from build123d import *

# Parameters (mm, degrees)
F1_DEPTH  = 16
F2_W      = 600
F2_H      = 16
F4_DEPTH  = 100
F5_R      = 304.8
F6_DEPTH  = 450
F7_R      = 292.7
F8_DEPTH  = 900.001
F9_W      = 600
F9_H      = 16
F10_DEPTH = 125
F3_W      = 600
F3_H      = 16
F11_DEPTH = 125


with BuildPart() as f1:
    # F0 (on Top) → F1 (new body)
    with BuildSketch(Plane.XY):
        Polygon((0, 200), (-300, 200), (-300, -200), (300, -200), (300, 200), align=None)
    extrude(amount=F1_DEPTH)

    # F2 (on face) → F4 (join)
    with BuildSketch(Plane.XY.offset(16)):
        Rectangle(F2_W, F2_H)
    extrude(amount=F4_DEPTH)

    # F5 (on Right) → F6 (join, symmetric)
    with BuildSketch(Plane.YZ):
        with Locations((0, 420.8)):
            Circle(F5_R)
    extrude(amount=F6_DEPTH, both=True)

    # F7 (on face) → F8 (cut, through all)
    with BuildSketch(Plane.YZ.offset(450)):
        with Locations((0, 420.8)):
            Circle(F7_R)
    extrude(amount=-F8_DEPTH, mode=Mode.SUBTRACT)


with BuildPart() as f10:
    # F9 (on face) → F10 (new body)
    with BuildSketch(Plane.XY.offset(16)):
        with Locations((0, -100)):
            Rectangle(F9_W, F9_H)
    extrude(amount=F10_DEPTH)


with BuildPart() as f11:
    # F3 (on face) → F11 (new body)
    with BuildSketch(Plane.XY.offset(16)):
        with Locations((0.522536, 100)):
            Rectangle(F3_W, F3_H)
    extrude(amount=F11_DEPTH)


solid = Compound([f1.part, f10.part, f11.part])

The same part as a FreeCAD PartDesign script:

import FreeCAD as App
import Part
import Sketcher

V = App.Vector


def add_polygon(sketch, points):
    """Adds a closed chain of lines whose ends are joined by coincident constraints."""
    first, n = sketch.GeometryCount, len(points)
    for a, b in zip(points, points[1:] + points[:1]):
        sketch.addGeometry(Part.LineSegment(App.Vector(*a, 0), App.Vector(*b, 0)), False)
    for i in range(n):
        sketch.addConstraint(Sketcher.Constraint("Coincident", first + i, 2, first + (i + 1) % n, 1))

doc = App.newDocument("Part")
body = doc.addObject("PartDesign::Body", "Body")
body.AllowCompound = True

sketch1 = body.newObject("Sketcher::SketchObject", "Sketch")
sketch1.AttachmentSupport = (doc.getObject("XY_Plane"), [""])
sketch1.MapMode = "FlatFace"
add_polygon(sketch1, [(-300, 200), (-300, -200), (300, -200), (300, 200)])
sketch1.addConstraint([
    Sketcher.Constraint("Vertical", 0),
    Sketcher.Constraint("Horizontal", 1),
    Sketcher.Constraint("Vertical", 2),
    Sketcher.Constraint("Horizontal", 3),
    Sketcher.Constraint("Symmetric", 0, 2, 2, 2, -1, 1),
    Sketcher.Constraint("DistanceX", 1, 1, 1, 2, 600.0),
    Sketcher.Constraint("DistanceY", 0, 2, 0, 1, 400.0),
])
pad1 = body.newObject("PartDesign::Pad", "Pad")
pad1.Profile = sketch1
pad1.Length = 16

sketch2 = body.newObject("Sketcher::SketchObject", "Sketch001")
sketch2.AttachmentSupport = (doc.getObject("XY_Plane"), [""])
sketch2.MapMode = "FlatFace"
sketch2.AttachmentOffset = App.Placement(V(0, 0, 16), App.Rotation())
add_polygon(sketch2, [(-300, 8), (-300, -8), (300, -8), (300, 8)])
sketch2.addConstraint([
    Sketcher.Constraint("Vertical", 0),
    Sketcher.Constraint("Horizontal", 1),
    Sketcher.Constraint("Vertical", 2),
    Sketcher.Constraint("Horizontal", 3),
    Sketcher.Constraint("Symmetric", 0, 2, 2, 2, -1, 1),
    Sketcher.Constraint("DistanceX", 1, 1, 1, 2, 600.0),
    Sketcher.Constraint("DistanceY", 0, 2, 0, 1, 16.0),
])
pad2 = body.newObject("PartDesign::Pad", "Pad001")
pad2.Profile = sketch2
pad2.Length = 100

sketch3 = body.newObject("Sketcher::SketchObject", "Sketch002")
sketch3.AttachmentSupport = (doc.getObject("YZ_Plane"), [""])
sketch3.MapMode = "FlatFace"
sketch3.addGeometry(Part.Circle(V(0, 421, 0), V(0, 0, 1), 305), False)
sketch3.addConstraint([
    Sketcher.Constraint("PointOnObject", 0, 3, -2),
    Sketcher.Constraint("Diameter", 0, 609.6),
    Sketcher.Constraint("DistanceY", -1, 1, 0, 3, 420.8),
])
pad3 = body.newObject("PartDesign::Pad", "Pad002")
pad3.Profile = sketch3
pad3.Length = 900
pad3.Midplane = True

sketch4 = body.newObject("Sketcher::SketchObject", "Sketch003")
sketch4.AttachmentSupport = (doc.getObject("YZ_Plane"), [""])
sketch4.MapMode = "FlatFace"
sketch4.AttachmentOffset = App.Placement(V(0, 0, 450), App.Rotation())
sketch4.addGeometry(Part.Circle(V(0, 421, 0), V(0, 0, 1), 293), False)
sketch4.addConstraint([
    Sketcher.Constraint("PointOnObject", 0, 3, -2),
    Sketcher.Constraint("Diameter", 0, 585.4),
    Sketcher.Constraint("DistanceY", -1, 1, 0, 3, 420.8),
])
pocket1 = body.newObject("PartDesign::Pocket", "Pocket")
pocket1.Profile = sketch4
pocket1.Type = "ThroughAll"
body2 = doc.addObject("PartDesign::Body", "Body001")

sketch5 = body2.newObject("Sketcher::SketchObject", "Sketch004")
sketch5.AttachmentSupport = (doc.getObject("XY_Plane001"), [""])
sketch5.MapMode = "FlatFace"
sketch5.AttachmentOffset = App.Placement(V(0, 0, 16), App.Rotation())
add_polygon(sketch5, [(-300, -92), (-300, -108), (300, -108), (300, -92)])
sketch5.addConstraint([
    Sketcher.Constraint("Vertical", 0),
    Sketcher.Constraint("Horizontal", 1),
    Sketcher.Constraint("Vertical", 2),
    Sketcher.Constraint("Horizontal", 3),
    Sketcher.Constraint("DistanceX", 1, 1, 1, 2, 600.0),
    Sketcher.Constraint("DistanceY", 0, 2, 0, 1, 16.0),
    Sketcher.Constraint("DistanceX", 0, 2, -1, 1, 300.0),
    Sketcher.Constraint("DistanceY", 0, 2, -1, 1, 108.0),
])
pad4 = body2.newObject("PartDesign::Pad", "Pad003")
pad4.Profile = sketch5
pad4.Length = 125
body3 = doc.addObject("PartDesign::Body", "Body002")

sketch6 = body3.newObject("Sketcher::SketchObject", "Sketch005")
sketch6.AttachmentSupport = (doc.getObject("XY_Plane002"), [""])
sketch6.MapMode = "FlatFace"
sketch6.AttachmentOffset = App.Placement(V(0, 0, 16), App.Rotation())
add_polygon(sketch6, [(-299, 108), (-299, 92), (301, 92), (301, 108)])
sketch6.addConstraint([
    Sketcher.Constraint("Vertical", 0),
    Sketcher.Constraint("Horizontal", 1),
    Sketcher.Constraint("Vertical", 2),
    Sketcher.Constraint("Horizontal", 3),
    Sketcher.Constraint("DistanceX", 1, 1, 1, 2, 600.0),
    Sketcher.Constraint("DistanceY", 0, 2, 0, 1, 16.0),
    Sketcher.Constraint("DistanceY", -1, 1, 0, 2, 92.0),
    Sketcher.Constraint("DistanceX", 0, 2, -1, 1, 299.477464),
])
pad5 = body3.newObject("PartDesign::Pad", "Pad004")
pad5.Profile = sketch6
pad5.Length = 125

doc.recompute()
